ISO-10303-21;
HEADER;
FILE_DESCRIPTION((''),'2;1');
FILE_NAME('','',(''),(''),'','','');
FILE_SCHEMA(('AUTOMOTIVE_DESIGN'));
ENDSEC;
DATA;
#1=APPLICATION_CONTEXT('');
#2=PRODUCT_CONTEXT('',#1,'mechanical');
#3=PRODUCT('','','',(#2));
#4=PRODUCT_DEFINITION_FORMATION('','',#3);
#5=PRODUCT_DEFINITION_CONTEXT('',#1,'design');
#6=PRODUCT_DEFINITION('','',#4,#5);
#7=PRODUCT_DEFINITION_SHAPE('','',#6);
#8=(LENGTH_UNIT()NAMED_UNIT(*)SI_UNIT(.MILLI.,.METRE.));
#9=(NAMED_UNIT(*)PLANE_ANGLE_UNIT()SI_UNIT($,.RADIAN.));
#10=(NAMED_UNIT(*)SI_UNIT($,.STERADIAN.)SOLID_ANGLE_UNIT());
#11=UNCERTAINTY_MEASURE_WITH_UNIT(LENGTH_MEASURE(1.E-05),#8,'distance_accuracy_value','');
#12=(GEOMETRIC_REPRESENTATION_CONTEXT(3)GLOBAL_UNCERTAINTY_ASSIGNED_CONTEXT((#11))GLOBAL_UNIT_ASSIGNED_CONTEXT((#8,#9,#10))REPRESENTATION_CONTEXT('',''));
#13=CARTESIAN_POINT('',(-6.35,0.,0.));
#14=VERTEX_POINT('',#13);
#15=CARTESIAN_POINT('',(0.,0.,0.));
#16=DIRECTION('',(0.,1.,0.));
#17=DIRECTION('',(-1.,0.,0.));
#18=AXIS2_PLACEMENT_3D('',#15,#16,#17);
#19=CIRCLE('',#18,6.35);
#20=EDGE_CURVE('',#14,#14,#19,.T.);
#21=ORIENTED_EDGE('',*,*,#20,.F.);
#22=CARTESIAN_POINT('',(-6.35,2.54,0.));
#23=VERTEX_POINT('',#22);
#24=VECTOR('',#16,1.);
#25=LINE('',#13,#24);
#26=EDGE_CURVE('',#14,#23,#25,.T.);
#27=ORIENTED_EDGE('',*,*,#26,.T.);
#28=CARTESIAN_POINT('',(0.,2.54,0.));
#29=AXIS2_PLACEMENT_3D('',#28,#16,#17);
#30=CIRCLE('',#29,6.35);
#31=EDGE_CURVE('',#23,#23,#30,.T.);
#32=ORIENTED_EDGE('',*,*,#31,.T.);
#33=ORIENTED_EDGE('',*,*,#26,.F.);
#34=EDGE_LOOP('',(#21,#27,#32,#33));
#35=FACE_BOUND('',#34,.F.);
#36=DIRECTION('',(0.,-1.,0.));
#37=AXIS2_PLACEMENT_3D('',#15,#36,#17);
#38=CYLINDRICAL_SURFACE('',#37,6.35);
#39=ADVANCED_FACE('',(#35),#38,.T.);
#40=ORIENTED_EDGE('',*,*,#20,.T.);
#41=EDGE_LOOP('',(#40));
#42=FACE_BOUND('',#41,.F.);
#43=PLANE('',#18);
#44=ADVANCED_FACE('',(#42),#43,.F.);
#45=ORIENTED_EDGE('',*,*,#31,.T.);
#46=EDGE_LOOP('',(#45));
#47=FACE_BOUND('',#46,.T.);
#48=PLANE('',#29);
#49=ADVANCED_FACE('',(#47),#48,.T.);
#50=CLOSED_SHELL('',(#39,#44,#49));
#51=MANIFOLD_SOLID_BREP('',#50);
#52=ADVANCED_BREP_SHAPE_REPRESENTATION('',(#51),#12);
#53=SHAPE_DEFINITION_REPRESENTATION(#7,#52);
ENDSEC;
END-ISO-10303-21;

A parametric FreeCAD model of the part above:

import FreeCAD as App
import Part
import Sketcher
from FreeCAD import Vector
Q = App.Units.Quantity

doc = App.newDocument("Part")
body = doc.addObject("PartDesign::Body", "Body")

sketch1 = body.newObject("Sketcher::SketchObject", "Sketch")
sketch1.AttachmentSupport = (doc.getObject("XZ_Plane"), [""])
sketch1.MapMode = "FlatFace"
sketch1.addGeometry(Part.Circle(Vector(0, 0, 0), Vector(0, 0, 1), 6), False)
sketch1.addConstraint(Sketcher.Constraint("Coincident", 0, 3, -1, 1))
sketch1.addConstraint(Sketcher.Constraint("Diameter", 0, Q("0.5 in")))
pad1 = body.newObject("PartDesign::Pad", "Pad")
pad1.Profile = sketch1
pad1.Length = Q("0.1 in")
pad1.Reversed = True

doc.recompute()
